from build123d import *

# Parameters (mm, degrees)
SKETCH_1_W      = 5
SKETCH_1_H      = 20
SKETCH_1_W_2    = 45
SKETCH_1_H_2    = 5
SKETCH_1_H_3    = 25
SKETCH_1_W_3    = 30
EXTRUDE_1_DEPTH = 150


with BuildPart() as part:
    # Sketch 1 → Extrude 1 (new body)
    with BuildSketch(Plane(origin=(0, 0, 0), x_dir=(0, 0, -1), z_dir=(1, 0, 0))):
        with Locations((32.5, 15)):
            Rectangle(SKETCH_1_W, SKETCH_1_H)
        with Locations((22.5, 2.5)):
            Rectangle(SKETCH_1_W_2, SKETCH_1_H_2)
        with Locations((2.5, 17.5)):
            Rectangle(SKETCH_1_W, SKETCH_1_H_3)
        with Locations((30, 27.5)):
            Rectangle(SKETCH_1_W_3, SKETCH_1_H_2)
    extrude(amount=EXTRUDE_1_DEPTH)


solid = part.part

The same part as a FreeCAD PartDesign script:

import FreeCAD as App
import Part
import Sketcher
Q = App.Units.Quantity


def add_polygon(sketch, points):
    """Adds a closed chain of lines whose ends are joined by coincident constraints."""
    first, n = sketch.GeometryCount, len(points)
    for a, b in zip(points, points[1:] + points[:1]):
        sketch.addGeometry(Part.LineSegment(App.Vector(*a, 0), App.Vector(*b, 0)), False)
    for i in range(n):
        sketch.addConstraint(Sketcher.Constraint("Coincident", first + i, 2, first + (i + 1) % n, 1))

doc = App.newDocument("Part")
body = doc.addObject("PartDesign::Body", "Body")

sketch1 = body.newObject("Sketcher::SketchObject", "Sketch")
sketch1.AttachmentSupport = (doc.getObject("YZ_Plane"), [""])
sketch1.MapMode = "FlatFace"
add_polygon(sketch1, [(25, -30), (5, -30), (5, -5), (30, -5), (30, 0), (0, 0), (0, -45), (5, -45), (5, -35), (25, -35), (25, -45), (30, -45), (30, -15), (25, -15)])
sketch1.addConstraint([
    Sketcher.Constraint("Horizontal", 0),
    Sketcher.Constraint("Vertical", 1),
    Sketcher.Constraint("Horizontal", 2),
    Sketcher.Constraint("Vertical", 3),
    Sketcher.Constraint("Horizontal", 4),
    Sketcher.Constraint("Vertical", 5),
    Sketcher.Constraint("Horizontal", 6),
    Sketcher.Constraint("Vertical", 7),
    Sketcher.Constraint("Horizontal", 8),
    Sketcher.Constraint("Vertical", 9),
    Sketcher.Constraint("Horizontal", 10),
    Sketcher.Constraint("Vertical", 11),
    Sketcher.Constraint("Horizontal", 12),
    Sketcher.Constraint("Vertical", 13),
    Sketcher.Constraint("Coincident", 4, 2, -1, 1),
    Sketcher.Constraint("Horizontal", 6, 2, 9, 2),
    Sketcher.Constraint("Vertical", 1, 2, 6, 2),
    Sketcher.Constraint("Vertical", 3, 2, 10, 2),
    Sketcher.Constraint("Vertical", 9, 2, 12, 2),
    Sketcher.Constraint("Equal", 6, 10),
    Sketcher.Constraint("Equal", 2, 1),
    Sketcher.Constraint("Equal", 12, 3),
    Sketcher.Constraint("Equal", 4, 11),
    Sketcher.Constraint("DistanceX", 0, 2, 0, 1, Q("20 mm")),
    Sketcher.Constraint("DistanceX", 2, 1, 2, 2, Q("25 mm")),
    Sketcher.Constraint("DistanceY", 5, 2, 5, 1, Q("45 mm")),
    Sketcher.Constraint("DistanceY", 7, 1, 7, 2, Q("10 mm")),
])
pad1 = body.newObject("PartDesign::Pad", "Pad")
pad1.Profile = sketch1
pad1.Length = 150

doc.recompute()
